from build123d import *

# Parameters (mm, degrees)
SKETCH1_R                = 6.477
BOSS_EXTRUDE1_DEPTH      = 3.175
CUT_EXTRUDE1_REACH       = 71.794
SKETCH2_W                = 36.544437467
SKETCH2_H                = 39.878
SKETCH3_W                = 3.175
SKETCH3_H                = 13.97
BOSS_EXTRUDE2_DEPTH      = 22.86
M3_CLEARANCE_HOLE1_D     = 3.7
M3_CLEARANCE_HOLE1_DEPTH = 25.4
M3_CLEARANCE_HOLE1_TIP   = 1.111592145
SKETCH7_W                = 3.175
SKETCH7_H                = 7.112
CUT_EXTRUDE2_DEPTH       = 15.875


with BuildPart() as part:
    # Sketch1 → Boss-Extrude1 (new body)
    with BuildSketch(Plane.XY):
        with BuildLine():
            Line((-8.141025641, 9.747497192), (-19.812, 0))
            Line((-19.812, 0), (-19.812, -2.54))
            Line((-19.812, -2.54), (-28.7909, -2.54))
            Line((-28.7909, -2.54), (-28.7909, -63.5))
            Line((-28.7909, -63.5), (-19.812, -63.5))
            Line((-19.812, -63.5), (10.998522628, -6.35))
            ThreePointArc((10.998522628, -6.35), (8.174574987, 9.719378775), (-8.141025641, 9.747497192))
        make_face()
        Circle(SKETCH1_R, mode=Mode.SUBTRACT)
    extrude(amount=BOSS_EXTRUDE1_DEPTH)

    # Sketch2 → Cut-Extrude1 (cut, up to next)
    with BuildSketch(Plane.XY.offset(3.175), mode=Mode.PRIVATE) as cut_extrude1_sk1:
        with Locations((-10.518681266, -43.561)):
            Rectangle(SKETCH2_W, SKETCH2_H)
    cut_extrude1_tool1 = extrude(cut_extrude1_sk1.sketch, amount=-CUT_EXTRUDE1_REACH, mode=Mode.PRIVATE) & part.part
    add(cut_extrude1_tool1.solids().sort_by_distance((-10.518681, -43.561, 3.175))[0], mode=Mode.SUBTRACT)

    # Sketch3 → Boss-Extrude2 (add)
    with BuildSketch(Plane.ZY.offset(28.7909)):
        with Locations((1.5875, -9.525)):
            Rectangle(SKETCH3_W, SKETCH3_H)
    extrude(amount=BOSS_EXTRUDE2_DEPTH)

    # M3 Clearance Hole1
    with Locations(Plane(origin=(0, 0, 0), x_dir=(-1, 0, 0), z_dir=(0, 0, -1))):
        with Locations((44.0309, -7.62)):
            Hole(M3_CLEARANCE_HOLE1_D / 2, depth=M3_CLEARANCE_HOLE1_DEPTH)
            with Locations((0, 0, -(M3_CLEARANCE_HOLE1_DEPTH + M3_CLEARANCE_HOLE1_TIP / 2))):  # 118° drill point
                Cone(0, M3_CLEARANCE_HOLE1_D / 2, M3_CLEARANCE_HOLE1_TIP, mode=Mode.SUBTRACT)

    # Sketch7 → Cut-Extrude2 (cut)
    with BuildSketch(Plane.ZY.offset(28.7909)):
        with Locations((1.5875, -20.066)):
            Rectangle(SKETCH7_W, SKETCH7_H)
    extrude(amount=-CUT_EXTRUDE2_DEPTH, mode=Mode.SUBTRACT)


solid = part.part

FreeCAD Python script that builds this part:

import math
import FreeCAD as App
import Part
import Sketcher
from FreeCAD import Vector
Q = App.Units.Quantity

doc = App.newDocument("Part")
body = doc.addObject("PartDesign::Body", "Body")

# Sketch on XY plane
sketch1 = doc.addObject("Sketcher::SketchObject", "Sketch")
body.addObject(sketch1)
sketch1.AttachmentSupport = (doc.XY_Plane, [""])
sketch1.MapMode = "FlatFace"
sketch1.addGeometry(Part.LineSegment(Vector(-8.141026, 9.747497, 0), Vector(-19.812, 0, 0)), False)
sketch1.addGeometry(Part.LineSegment(Vector(-19.812, 0, 0), Vector(-19.812, -2.54, 0)), False)
sketch1.addGeometry(Part.LineSegment(Vector(-19.812, -2.54, 0), Vector(-28.7909, -2.54, 0)), False)
sketch1.addGeometry(Part.LineSegment(Vector(-28.7909, -2.54, 0), Vector(-28.7909, -63.5, 0)), False)
sketch1.addGeometry(Part.LineSegment(Vector(-28.7909, -63.5, 0), Vector(-19.812, -63.5, 0)), False)
sketch1.addGeometry(Part.LineSegment(Vector(-19.812, -63.5, 0), Vector(10.998523, -6.35, 0)), False)
sketch1.addGeometry(Part.ArcOfCircle(Part.Circle(Vector(0, 0, 0), Vector(0, 0, 1), 12.7), math.radians(-30), math.radians(129.868342)), False)
sketch1.addGeometry(Part.Circle(Vector(0, 0, 0), Vector(0, 0, 1), 6.477), False)
sketch1.addConstraint(Sketcher.Constraint("Coincident", 0, 2, 1, 1))
sketch1.addConstraint(Sketcher.Constraint("Coincident", 1, 2, 2, 1))
sketch1.addConstraint(Sketcher.Constraint("Coincident", 2, 2, 3, 1))
sketch1.addConstraint(Sketcher.Constraint("Coincident", 3, 2, 4, 1))
sketch1.addConstraint(Sketcher.Constraint("Coincident", 4, 2, 5, 1))
sketch1.addConstraint(Sketcher.Constraint("Coincident", 5, 2, 6, 1))
sketch1.addConstraint(Sketcher.Constraint("Tangent", 6, 2, 0, 1))
sketch1.addConstraint(Sketcher.Constraint("Vertical", 1))
sketch1.addConstraint(Sketcher.Constraint("Horizontal", 2))
sketch1.addConstraint(Sketcher.Constraint("Vertical", 3))
sketch1.addConstraint(Sketcher.Constraint("Horizontal", 4))
sketch1.addConstraint(Sketcher.Constraint("Coincident", 6, 3, -1, 1))
sketch1.addConstraint(Sketcher.Constraint("Coincident", 7, 3, -1, 1))
sketch1.addConstraint(Sketcher.Constraint("PointOnObject", 0, 2, -1))
sketch1.addConstraint(Sketcher.Constraint("Vertical", 1, 2, 4, 2))
sketch1.addConstraint(Sketcher.Constraint("Radius", 6, Q("0.5 in")))
sketch1.addConstraint(Sketcher.Constraint("Diameter", 7, Q("0.51 in")))
sketch1.addConstraint(Sketcher.Constraint("DistanceY", 1, 2, 1, 1, Q("0.1 in")))
sketch1.addConstraint(Sketcher.Constraint("DistanceY", 3, 2, 3, 1, Q("2.4 in")))
sketch1.addConstraint(Sketcher.Constraint("DistanceX", 0, 2, -1, 1, Q("0.78 in")))
sketch1.addConstraint(Sketcher.Constraint("DistanceY", 5, 2, -1, 1, Q("0.25 in")))
sketch1.addConstraint(Sketcher.Constraint("DistanceX", 2, 2, 2, 1, Q("0.3535 in")))
pad1 = doc.addObject("PartDesign::Pad", "Pad")
body.addObject(pad1)
pad1.Profile = sketch1
pad1.Length = Q("0.125 in")

# Sketch on XY plane
sketch2 = doc.addObject("Sketcher::SketchObject", "Sketch001")
body.addObject(sketch2)
sketch2.AttachmentSupport = (doc.XY_Plane, [""])
sketch2.MapMode = "FlatFace"
sketch2.AttachmentOffset = App.Placement(Vector(0, 0, 0.125 * 25.4), App.Rotation())
sketch2.addGeometry(Part.LineSegment(Vector(-28.7909, -23.622, 0), Vector(-28.7909, -63.5, 0)), False)
sketch2.addGeometry(Part.LineSegment(Vector(-28.7909, -63.5, 0), Vector(7.753537, -63.5, 0)), False)
sketch2.addGeometry(Part.LineSegment(Vector(7.753537, -63.5, 0), Vector(7.753537, -23.622, 0)), False)
sketch2.addGeometry(Part.LineSegment(Vector(7.753537, -23.622, 0), Vector(-28.7909, -23.622, 0)), False)
sketch2.addConstraint(Sketcher.Constraint("Coincident", 0, 2, 1, 1))
sketch2.addConstraint(Sketcher.Constraint("Coincident", 1, 2, 2, 1))
sketch2.addConstraint(Sketcher.Constraint("Coincident", 2, 2, 3, 1))
sketch2.addConstraint(Sketcher.Constraint("Coincident", 3, 2, 0, 1))
sketch2.addConstraint(Sketcher.Constraint("Vertical", 0))
sketch2.addConstraint(Sketcher.Constraint("Horizontal", 1))
sketch2.addConstraint(Sketcher.Constraint("Vertical", 2))
sketch2.addConstraint(Sketcher.Constraint("Horizontal", 3))
sketch2.addConstraint(Sketcher.Constraint("DistanceY", 0, 2, 0, 1, Q("1.57 in")))
sketch2.addConstraint(Sketcher.Constraint("DistanceY", 0, 2, -1, 1, Q("2.5 in")))
sketch2.addConstraint(Sketcher.Constraint("DistanceX", 0, 2, -1, 1, Q("1.1335 in")))
sketch2.addConstraint(Sketcher.Constraint("DistanceX", 1, 1, 1, 2, Q("36.544437 mm")))
pocket1 = doc.addObject("PartDesign::Pocket", "Pocket")
body.addObject(pocket1)
pocket1.Profile = sketch2
pocket1.Type = "UpToFirst"

# Sketch on YZ plane
sketch3 = doc.addObject("Sketcher::SketchObject", "Sketch002")
body.addObject(sketch3)
sketch3.AttachmentSupport = (doc.YZ_Plane, [""])
sketch3.MapMode = "FlatFace"
sketch3.AttachmentOffset = App.Placement(Vector(0, 0, -1.1335 * 25.4), App.Rotation())
sketch3.addGeometry(Part.LineSegment(Vector(-2.54, 0, 0), Vector(-16.51, 0, 0)), False)
sketch3.addGeometry(Part.LineSegment(Vector(-16.51, 0, 0), Vector(-16.51, 3.175, 0)), False)
sketch3.addGeometry(Part.LineSegment(Vector(-16.51, 3.175, 0), Vector(-2.54, 3.175, 0)), False)
sketch3.addGeometry(Part.LineSegment(Vector(-2.54, 3.175, 0), Vector(-2.54, 0, 0)), False)
sketch3.addConstraint(Sketcher.Constraint("Coincident", 0, 2, 1, 1))
sketch3.addConstraint(Sketcher.Constraint("Coincident", 1, 2, 2, 1))
sketch3.addConstraint(Sketcher.Constraint("Coincident", 2, 2, 3, 1))
sketch3.addConstraint(Sketcher.Constraint("Coincident", 3, 2, 0, 1))
sketch3.addConstraint(Sketcher.Constraint("Horizontal", 0))
sketch3.addConstraint(Sketcher.Constraint("Vertical", 1))
sketch3.addConstraint(Sketcher.Constraint("Horizontal", 2))
sketch3.addConstraint(Sketcher.Constraint("Vertical", 3))
sketch3.addConstraint(Sketcher.Constraint("PointOnObject", 0, 2, -1))
sketch3.addConstraint(Sketcher.Constraint("DistanceX", 0, 2, 0, 1, Q("0.55 in")))
sketch3.addConstraint(Sketcher.Constraint("DistanceX", 2, 2, -1, 1, Q("0.1 in")))
sketch3.addConstraint(Sketcher.Constraint("DistanceY", 1, 1, 1, 2, Q("0.125 in")))
pad2 = doc.addObject("PartDesign::Pad", "Pad001")
body.addObject(pad2)
pad2.Profile = sketch3
pad2.Length = Q("0.9 in")
pad2.Reversed = True

# Sketch on XY plane
sketch4 = doc.addObject("Sketcher::SketchObject", "Sketch003")
body.addObject(sketch4)
sketch4.AttachmentSupport = (doc.XY_Plane, [""])
sketch4.MapMode = "FlatFace"
sketch4.addGeometry(Part.Circle(Vector(-44.0309, -7.62, 0), Vector(0, 0, 1), 1.85), False)
sketch4.addConstraint(Sketcher.Constraint("DistanceY", 0, 3, -1, 1, Q("0.3 in")))
sketch4.addConstraint(Sketcher.Constraint("Diameter", 0, Q("3.7 mm")))
sketch4.addConstraint(Sketcher.Constraint("DistanceX", 0, 3, -1, 1, Q("1.7335 in")))
doc.recompute()
hole = doc.addObject("PartDesign::Hole", "Hole")
body.addObject(hole)
hole.Profile = sketch4
hole.ThreadType = "None"
hole.Diameter = 3.7
hole.DepthType = "Dimension"
hole.Depth = Q("1 in")
hole.DrillPoint = "Angled"
hole.DrillPointAngle = 118
hole.Reversed = True

# Sketch on YZ plane
sketch5 = doc.addObject("Sketcher::SketchObject", "Sketch004")
body.addObject(sketch5)
sketch5.AttachmentSupport = (doc.YZ_Plane, [""])
sketch5.MapMode = "FlatFace"
sketch5.AttachmentOffset = App.Placement(Vector(0, 0, -1.1335 * 25.4), App.Rotation())
sketch5.addGeometry(Part.LineSegment(Vector(-16.51, 0, 0), Vector(-23.622, 0, 0)), False)
sketch5.addGeometry(Part.LineSegment(Vector(-23.622, 0, 0), Vector(-23.622, 3.175, 0)), False)
sketch5.addGeometry(Part.LineSegment(Vector(-23.622, 3.175, 0), Vector(-16.51, 3.175, 0)), False)
sketch5.addGeometry(Part.LineSegment(Vector(-16.51, 3.175, 0), Vector(-16.51, 0, 0)), False)
sketch5.addConstraint(Sketcher.Constraint("Coincident", 0, 2, 1, 1))
sketch5.addConstraint(Sketcher.Constraint("Coincident", 1, 2, 2, 1))
sketch5.addConstraint(Sketcher.Constraint("Coincident", 2, 2, 3, 1))
sketch5.addConstraint(Sketcher.Constraint("Coincident", 3, 2, 0, 1))
sketch5.addConstraint(Sketcher.Constraint("Horizontal", 0))
sketch5.addConstraint(Sketcher.Constraint("Vertical", 1))
sketch5.addConstraint(Sketcher.Constraint("Horizontal", 2))
sketch5.addConstraint(Sketcher.Constraint("Vertical", 3))
sketch5.addConstraint(Sketcher.Constraint("PointOnObject", 0, 2, -1))
sketch5.addConstraint(Sketcher.Constraint("DistanceX", 0, 2, 0, 1, Q("0.28 in")))
sketch5.addConstraint(Sketcher.Constraint("DistanceY", 1, 1, 1, 2, Q("0.125 in")))
sketch5.addConstraint(Sketcher.Constraint("DistanceX", 0, 2, -1, 1, Q("0.93 in")))
pocket2 = doc.addObject("PartDesign::Pocket", "Pocket001")
body.addObject(pocket2)
pocket2.Profile = sketch5
pocket2.Length = Q("0.625 in")
pocket2.Reversed = True

doc.recompute()
